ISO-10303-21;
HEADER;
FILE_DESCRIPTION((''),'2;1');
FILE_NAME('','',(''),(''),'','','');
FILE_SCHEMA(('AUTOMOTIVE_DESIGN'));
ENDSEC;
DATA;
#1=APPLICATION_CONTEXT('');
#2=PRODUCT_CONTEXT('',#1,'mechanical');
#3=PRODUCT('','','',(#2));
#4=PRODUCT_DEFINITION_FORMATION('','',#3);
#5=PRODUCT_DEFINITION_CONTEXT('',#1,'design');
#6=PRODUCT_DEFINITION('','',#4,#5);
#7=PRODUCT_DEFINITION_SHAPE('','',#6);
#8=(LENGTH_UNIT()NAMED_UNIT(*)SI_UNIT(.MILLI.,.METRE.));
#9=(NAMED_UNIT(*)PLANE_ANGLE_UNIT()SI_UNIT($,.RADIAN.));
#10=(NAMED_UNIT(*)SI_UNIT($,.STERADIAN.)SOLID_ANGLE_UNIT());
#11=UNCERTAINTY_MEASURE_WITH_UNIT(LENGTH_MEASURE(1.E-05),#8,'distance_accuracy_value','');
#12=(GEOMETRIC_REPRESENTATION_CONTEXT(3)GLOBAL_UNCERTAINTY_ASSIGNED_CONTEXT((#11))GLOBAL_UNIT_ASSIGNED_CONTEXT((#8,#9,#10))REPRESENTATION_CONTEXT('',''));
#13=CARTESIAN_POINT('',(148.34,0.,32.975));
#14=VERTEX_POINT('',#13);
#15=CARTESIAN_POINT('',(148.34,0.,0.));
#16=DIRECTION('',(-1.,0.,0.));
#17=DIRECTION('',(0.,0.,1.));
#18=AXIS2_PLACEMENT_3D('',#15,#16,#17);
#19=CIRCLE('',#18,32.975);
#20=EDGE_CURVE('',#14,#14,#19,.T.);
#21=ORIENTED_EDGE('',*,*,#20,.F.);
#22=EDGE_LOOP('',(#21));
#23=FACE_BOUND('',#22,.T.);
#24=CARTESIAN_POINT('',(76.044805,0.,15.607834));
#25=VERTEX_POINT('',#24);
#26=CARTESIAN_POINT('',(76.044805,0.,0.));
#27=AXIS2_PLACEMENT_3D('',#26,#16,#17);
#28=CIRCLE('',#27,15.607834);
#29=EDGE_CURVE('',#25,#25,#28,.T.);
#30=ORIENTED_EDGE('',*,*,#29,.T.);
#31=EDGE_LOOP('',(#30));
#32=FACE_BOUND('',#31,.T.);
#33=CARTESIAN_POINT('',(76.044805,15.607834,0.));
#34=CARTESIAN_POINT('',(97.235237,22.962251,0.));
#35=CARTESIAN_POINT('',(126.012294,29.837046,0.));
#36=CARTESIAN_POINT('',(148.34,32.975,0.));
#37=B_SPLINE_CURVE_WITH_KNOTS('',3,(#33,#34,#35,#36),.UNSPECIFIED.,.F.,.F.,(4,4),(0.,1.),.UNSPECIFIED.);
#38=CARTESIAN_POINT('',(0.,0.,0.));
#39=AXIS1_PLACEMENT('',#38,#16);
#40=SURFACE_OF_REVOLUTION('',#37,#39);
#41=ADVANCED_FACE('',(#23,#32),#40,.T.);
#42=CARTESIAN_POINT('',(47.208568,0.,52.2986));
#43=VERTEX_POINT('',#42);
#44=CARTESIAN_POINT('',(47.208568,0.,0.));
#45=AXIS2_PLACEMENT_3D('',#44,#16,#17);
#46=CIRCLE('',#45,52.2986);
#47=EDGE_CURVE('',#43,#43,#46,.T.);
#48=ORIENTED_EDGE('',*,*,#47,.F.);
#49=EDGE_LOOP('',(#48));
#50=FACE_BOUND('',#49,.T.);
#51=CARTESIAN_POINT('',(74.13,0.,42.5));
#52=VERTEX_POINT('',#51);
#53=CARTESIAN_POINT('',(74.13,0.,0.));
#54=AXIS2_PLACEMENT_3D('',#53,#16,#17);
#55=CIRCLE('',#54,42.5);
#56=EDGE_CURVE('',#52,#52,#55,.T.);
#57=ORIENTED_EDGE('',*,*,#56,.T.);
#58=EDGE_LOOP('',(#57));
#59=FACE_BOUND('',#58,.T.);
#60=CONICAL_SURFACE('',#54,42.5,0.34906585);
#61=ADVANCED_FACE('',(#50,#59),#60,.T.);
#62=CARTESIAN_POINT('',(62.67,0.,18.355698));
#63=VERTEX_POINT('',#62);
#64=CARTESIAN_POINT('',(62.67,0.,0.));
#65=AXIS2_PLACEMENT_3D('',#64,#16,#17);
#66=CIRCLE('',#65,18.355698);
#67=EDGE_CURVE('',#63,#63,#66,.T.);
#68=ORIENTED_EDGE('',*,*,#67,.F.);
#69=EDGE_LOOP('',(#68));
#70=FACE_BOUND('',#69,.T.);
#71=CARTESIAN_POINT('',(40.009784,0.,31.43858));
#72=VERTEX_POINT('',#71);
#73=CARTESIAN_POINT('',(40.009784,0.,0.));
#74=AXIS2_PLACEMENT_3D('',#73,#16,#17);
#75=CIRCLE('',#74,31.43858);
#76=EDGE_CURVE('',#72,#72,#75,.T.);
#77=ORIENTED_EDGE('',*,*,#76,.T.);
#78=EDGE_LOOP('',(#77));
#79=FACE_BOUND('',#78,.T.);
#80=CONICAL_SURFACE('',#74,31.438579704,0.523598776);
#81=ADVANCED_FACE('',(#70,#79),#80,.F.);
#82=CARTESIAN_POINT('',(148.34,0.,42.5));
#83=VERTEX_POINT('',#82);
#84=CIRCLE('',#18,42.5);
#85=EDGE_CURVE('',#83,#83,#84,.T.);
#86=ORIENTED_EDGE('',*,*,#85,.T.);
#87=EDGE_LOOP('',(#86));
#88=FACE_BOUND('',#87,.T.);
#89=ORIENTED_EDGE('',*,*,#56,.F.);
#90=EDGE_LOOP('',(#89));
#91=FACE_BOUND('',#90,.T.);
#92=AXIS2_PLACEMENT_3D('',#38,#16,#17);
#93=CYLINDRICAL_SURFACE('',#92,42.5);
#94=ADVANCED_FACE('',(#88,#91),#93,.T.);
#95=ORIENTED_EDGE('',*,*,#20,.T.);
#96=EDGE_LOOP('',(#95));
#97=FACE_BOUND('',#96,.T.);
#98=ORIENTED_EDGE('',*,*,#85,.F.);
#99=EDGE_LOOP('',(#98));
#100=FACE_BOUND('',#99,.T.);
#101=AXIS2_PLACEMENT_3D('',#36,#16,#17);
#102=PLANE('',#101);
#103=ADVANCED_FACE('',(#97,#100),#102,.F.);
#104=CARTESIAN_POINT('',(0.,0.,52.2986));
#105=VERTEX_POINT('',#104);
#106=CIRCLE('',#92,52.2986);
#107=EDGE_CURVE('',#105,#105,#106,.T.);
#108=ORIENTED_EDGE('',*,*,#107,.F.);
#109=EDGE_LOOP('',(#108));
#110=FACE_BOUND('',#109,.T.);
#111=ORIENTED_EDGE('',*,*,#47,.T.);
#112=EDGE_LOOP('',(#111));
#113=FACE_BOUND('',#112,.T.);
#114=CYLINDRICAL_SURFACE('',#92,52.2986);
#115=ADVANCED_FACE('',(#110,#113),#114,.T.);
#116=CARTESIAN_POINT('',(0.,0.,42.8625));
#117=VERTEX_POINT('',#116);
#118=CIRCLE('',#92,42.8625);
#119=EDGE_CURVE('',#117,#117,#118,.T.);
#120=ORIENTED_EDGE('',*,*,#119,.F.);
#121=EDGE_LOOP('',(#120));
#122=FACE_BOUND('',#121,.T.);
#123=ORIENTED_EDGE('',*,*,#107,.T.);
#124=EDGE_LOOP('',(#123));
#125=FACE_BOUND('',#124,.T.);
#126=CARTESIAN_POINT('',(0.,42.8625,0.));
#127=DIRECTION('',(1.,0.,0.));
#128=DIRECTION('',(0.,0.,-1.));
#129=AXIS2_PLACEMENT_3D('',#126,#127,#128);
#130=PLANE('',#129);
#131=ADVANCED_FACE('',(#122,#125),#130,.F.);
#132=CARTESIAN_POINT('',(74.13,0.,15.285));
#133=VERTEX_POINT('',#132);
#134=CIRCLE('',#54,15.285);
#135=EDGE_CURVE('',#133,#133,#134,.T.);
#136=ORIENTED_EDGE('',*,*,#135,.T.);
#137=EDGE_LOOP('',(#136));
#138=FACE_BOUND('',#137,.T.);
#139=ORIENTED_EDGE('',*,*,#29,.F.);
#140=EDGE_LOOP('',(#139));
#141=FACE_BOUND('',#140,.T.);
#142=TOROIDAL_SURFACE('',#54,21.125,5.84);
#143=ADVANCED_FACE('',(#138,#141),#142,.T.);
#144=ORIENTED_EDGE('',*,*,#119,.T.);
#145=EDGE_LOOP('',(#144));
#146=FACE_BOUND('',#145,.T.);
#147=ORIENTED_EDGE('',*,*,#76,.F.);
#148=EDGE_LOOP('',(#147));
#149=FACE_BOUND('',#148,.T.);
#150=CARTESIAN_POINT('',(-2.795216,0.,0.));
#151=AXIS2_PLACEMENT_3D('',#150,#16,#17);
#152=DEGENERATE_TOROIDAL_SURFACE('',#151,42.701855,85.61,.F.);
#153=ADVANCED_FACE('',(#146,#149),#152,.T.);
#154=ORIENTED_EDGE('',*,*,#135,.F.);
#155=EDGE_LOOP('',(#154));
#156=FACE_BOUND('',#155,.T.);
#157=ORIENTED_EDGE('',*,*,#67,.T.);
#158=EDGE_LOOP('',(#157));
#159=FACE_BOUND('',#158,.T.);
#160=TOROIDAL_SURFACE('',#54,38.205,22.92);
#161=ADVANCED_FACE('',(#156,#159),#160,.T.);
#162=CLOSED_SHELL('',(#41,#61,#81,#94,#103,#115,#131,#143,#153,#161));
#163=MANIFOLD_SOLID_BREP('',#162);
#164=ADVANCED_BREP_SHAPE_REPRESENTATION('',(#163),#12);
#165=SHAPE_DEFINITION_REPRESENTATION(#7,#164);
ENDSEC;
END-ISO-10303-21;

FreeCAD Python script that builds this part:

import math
import FreeCAD as App
import Part
import Sketcher

V = App.Vector
Q = App.Units.Quantity

doc = App.newDocument("Part")
body = doc.addObject("PartDesign::Body", "Body")

# Sketch on XY plane
sketch1 = doc.addObject("Sketcher::SketchObject", "Sketch")
body.addObject(sketch1)
sketch1.AttachmentSupport = (doc.XY_Plane, [""])
sketch1.MapMode = "FlatFace"
sketch1.addGeometry(Part.LineSegment(V(40.009784, 31.43858, 0), V(62.67, 18.355698, 0)), False)
sketch1.addGeometry(Part.ArcOfCircle(Part.Circle(V(74.13, 38.205, 0), V(0, 0, 1), 22.92), math.radians(-120), math.radians(-90)), False)
sketch1.addGeometry(Part.ArcOfCircle(Part.Circle(V(74.13, 21.125, 0), V(0, 0, 1), 5.84), math.radians(-90), math.radians(-70.86)), False)
sketch1.addGeometry(Part.BSplineCurve([V(76.044805, 15.607834, 0), V(97.235237, 22.962251, 0), V(126.012294, 29.837046, 0), V(148.34, 32.975, 0)], [4, 4], [0, 1], False, 3, [1, 1, 1, 1], False), False)
sketch1.addGeometry(Part.LineSegment(V(148.34, 32.975, 0), V(148.34, 42.5, 0)), False)
sketch1.addGeometry(Part.LineSegment(V(148.34, 42.5, 0), V(74.13, 42.5, 0)), False)
sketch1.addGeometry(Part.LineSegment(V(74.13, 42.5, 0), V(47.208568, 52.2986, 0)), False)
sketch1.addGeometry(Part.LineSegment(V(47.208568, 52.2986, 0), V(0, 52.2986, 0)), False)
sketch1.addGeometry(Part.LineSegment(V(0, 52.2986, 0), V(0, 42.8625, 0)), False)
sketch1.addGeometry(Part.ArcOfCircle(Part.Circle(V(-2.795216, -42.701855, 0), V(0, 0, 1), 85.61), math.radians(60), math.radians(88.128927)), False)
sketch1.addConstraint(Sketcher.Constraint("Block", 3))
sketch1.addConstraint(Sketcher.Constraint("Coincident", 0, 2, 1, 1))
sketch1.addConstraint(Sketcher.Constraint("Coincident", 1, 2, 2, 1))
sketch1.addConstraint(Sketcher.Constraint("Coincident", 2, 2, 3, 1))
sketch1.addConstraint(Sketcher.Constraint("Coincident", 3, 2, 4, 1))
sketch1.addConstraint(Sketcher.Constraint("Coincident", 4, 2, 5, 1))
sketch1.addConstraint(Sketcher.Constraint("Coincident", 5, 2, 6, 1))
sketch1.addConstraint(Sketcher.Constraint("Coincident", 6, 2, 7, 1))
sketch1.addConstraint(Sketcher.Constraint("Coincident", 7, 2, 8, 1))
sketch1.addConstraint(Sketcher.Constraint("Coincident", 8, 2, 9, 2))
sketch1.addConstraint(Sketcher.Constraint("Coincident", 9, 1, 0, 1))
sketch1.addConstraint(Sketcher.Constraint("Vertical", 4))
sketch1.addConstraint(Sketcher.Constraint("Horizontal", 5))
sketch1.addConstraint(Sketcher.Constraint("Horizontal", 7))
sketch1.addConstraint(Sketcher.Constraint("Vertical", 8))
sketch1.addConstraint(Sketcher.Constraint("PointOnObject", 7, 2, -2))
sketch1.addConstraint(Sketcher.Constraint("DistanceY", 4, 1, 4, 2, Q("0.375 in")))
sketch1.addConstraint(Sketcher.Constraint("Radius", 1, Q("22.92 mm")))
sketch1.addConstraint(Sketcher.Constraint("Radius", 2, Q("5.84 mm")))
sketch1.addConstraint(Sketcher.Constraint("Radius", 9, Q("85.61 mm")))
sketch1.addConstraint(Sketcher.Constraint("DistanceY", 8, 2, 8, 1, Q("0.3715 in")))
sketch1.addConstraint(Sketcher.Constraint("DistanceY", -1, 1, 6, 2, Q("2.059 in")))
sketch1.addConstraint(Sketcher.Constraint("DistanceX", 5, 2, 5, 1, Q("74.21 mm")))
sketch1.addConstraint(Sketcher.Constraint("DistanceX", -1, 1, 1, 3, Q("74.13 mm")))
sketch1.addConstraint(Sketcher.Constraint("DistanceY", -1, 1, 1, 3, Q("38.205 mm")))
sketch1.addConstraint(Sketcher.Constraint("DistanceX", -1, 1, 0, 2, Q("62.67 mm")))
sketch1.addConstraint(Sketcher.Constraint("DistanceX", -1, 1, 1, 2, Q("74.13 mm")))
sketch1.addConstraint(Sketcher.Constraint("Distance", 6, Q("28.64919 mm")))
sketch1.addConstraint(Sketcher.Constraint("DistanceY", -1, 1, 9, 1, Q("31.43858 mm")))
sketch1.addConstraint(Sketcher.Constraint("DistanceX", 9, 3, 2, 2, Q("78.840021 mm")))
revolution = doc.addObject("PartDesign::Revolution", "Revolution")
body.addObject(revolution)
revolution.Profile = sketch1
revolution.ReferenceAxis = (sketch1, ["H_Axis"])
revolution.Angle = 360

doc.recompute()
